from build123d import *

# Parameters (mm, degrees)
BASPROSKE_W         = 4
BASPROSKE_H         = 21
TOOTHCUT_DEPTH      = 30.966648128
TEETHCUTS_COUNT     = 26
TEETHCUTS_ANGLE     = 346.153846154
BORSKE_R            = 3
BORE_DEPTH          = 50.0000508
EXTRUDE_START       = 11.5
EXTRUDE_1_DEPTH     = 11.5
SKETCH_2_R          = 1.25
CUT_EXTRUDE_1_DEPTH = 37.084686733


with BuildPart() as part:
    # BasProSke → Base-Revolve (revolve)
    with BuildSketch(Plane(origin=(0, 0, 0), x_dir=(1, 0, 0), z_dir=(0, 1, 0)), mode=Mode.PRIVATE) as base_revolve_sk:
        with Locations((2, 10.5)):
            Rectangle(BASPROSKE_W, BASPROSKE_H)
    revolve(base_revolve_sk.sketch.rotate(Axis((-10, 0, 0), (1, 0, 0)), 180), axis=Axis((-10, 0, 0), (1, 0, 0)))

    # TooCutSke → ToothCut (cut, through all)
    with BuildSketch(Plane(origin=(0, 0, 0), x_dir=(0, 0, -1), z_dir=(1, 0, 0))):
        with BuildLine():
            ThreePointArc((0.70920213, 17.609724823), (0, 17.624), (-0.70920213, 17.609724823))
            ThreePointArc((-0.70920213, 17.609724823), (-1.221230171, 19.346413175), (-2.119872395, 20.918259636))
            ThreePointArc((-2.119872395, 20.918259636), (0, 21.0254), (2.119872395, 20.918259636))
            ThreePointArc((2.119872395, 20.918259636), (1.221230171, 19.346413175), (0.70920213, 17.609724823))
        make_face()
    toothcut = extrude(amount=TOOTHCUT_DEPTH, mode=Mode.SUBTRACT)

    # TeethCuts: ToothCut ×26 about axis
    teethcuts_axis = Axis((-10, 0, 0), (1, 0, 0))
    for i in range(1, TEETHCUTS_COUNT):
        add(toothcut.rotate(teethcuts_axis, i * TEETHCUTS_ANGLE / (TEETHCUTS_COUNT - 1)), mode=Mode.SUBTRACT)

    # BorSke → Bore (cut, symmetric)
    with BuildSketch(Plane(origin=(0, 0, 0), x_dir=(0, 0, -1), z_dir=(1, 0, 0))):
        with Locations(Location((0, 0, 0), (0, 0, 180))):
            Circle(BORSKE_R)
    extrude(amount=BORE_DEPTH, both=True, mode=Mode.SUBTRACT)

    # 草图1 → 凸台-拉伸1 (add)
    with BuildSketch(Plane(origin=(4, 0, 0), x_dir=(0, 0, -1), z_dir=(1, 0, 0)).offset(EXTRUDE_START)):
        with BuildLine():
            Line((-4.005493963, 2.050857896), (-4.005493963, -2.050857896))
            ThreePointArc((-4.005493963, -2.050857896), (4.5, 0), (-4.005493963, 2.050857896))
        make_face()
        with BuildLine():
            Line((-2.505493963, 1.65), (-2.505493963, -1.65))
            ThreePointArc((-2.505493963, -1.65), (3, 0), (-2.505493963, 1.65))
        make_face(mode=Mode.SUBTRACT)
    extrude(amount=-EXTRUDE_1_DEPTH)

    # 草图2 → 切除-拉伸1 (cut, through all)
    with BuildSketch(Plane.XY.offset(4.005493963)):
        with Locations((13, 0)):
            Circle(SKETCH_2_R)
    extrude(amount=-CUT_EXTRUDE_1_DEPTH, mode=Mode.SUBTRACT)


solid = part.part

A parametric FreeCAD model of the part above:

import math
import FreeCAD as App
import Part
import Sketcher
from FreeCAD import Vector

doc = App.newDocument("Part")
params = doc.addObject("Spreadsheet::Sheet", "Params")
for row, (alias, value) in enumerate([
    ("sketch1_width", "4 mm"),
    ("sketch1_height", "21 mm"),
    ("revolution_angle", "360 deg"),
    ("sketch2_radius", "7.8 mm"),
    ("sketch3_diameter", "6 mm"),
    ("pocket2_length", "100.000102 mm"),
    ("sketch4_radius", "3 mm"),
    ("sketch4_radius2", "4.5 mm"),
    ("sketch4_width", "3.3 mm"),
    ("pad1_length", "11.5 mm"),
    ("sketch5_diameter", "2.5 mm"),
], start=1):
    params.set(f"A{row}", alias)
    params.set(f"B{row}", "=" + value)
    params.setAlias(f"B{row}", alias)

body = doc.addObject("PartDesign::Body", "Body")

sketch1 = doc.addObject("Sketcher::SketchObject", "Sketch")
body.addObject(sketch1)
sketch1.AttachmentSupport = (doc.XZ_Plane, [""])
sketch1.MapMode = "FlatFace"
sketch1.addGeometry([
    Part.LineSegment(Vector(0, -21, 0), Vector(0, 0, 0)),
    Part.LineSegment(Vector(0, 0, 0), Vector(4, 0, 0)),
    Part.LineSegment(Vector(4, 0, 0), Vector(4, -21, 0)),
    Part.LineSegment(Vector(4, -21, 0), Vector(0, -21, 0)),
], False)
sketch1.addConstraint([
    Sketcher.Constraint("Coincident", 0, 2, 1, 1),
    Sketcher.Constraint("Coincident", 1, 2, 2, 1),
    Sketcher.Constraint("Coincident", 2, 2, 3, 1),
    Sketcher.Constraint("Coincident", 3, 2, 0, 1),
    Sketcher.Constraint("Vertical", 0),
    Sketcher.Constraint("Horizontal", 1),
    Sketcher.Constraint("Vertical", 2),
    Sketcher.Constraint("Horizontal", 3),
    Sketcher.Constraint("Coincident", 0, 2, -1, 1),
    Sketcher.Constraint("DistanceX", 1, 1, 1, 2, 4.0),
    Sketcher.Constraint("DistanceY", 0, 1, 0, 2, 21.0),
])
sketch1.setExpression("Constraints[9]", "Params.sketch1_width")
sketch1.setExpression("Constraints[10]", "Params.sketch1_height")
revolution = doc.addObject("PartDesign::Revolution", "Revolution")
body.addObject(revolution)
revolution.Profile = sketch1
revolution.ReferenceAxis = (sketch1, ["H_Axis"])
revolution.setExpression("Angle", "Params.revolution_angle")

sketch2 = doc.addObject("Sketcher::SketchObject", "Sketch001")
body.addObject(sketch2)
sketch2.AttachmentSupport = (doc.YZ_Plane, [""])
sketch2.MapMode = "FlatFace"
sketch2.addGeometry([
    Part.ArcOfCircle(Part.Circle(Vector(0, 0, 0), Vector(0, 0, 1), 17.6), math.radians(-2.31), math.radians(2.31)),
    Part.ArcOfCircle(Part.Circle(Vector(16.3, -8.4, 0), Vector(0, 0, 1), 7.8), math.radians(54), math.radians(80)),
    Part.ArcOfCircle(Part.Circle(Vector(0, 0, 0), Vector(0, 0, 1), 21), math.radians(-5.79), math.radians(5.79)),
    Part.ArcOfCircle(Part.Circle(Vector(16.3, 8.4, 0), Vector(0, 0, 1), 7.8), math.radians(-80), math.radians(-54)),
], False)
sketch2.addConstraint([
    Sketcher.Constraint("Coincident", 0, 1, 1, 2),
    Sketcher.Constraint("Coincident", 1, 1, 2, 1),
    Sketcher.Constraint("Coincident", 2, 2, 3, 2),
    Sketcher.Constraint("Coincident", 3, 1, 0, 2),
    Sketcher.Constraint("Coincident", 0, 3, -1, 1),
    Sketcher.Constraint("Coincident", 2, 3, -1, 1),
    Sketcher.Constraint("Equal", 1, 3),
    Sketcher.Constraint("Symmetric", 1, 3, 3, 3, -1),
    Sketcher.Constraint("Radius", 1, 7.8),
    Sketcher.Constraint("Radius", 0, 17.624),
    Sketcher.Constraint("Radius", 2, 21.0254),
    Sketcher.Constraint("DistanceY", 1, 3, -1, 1, 8.39626),
    Sketcher.Constraint("DistanceX", -1, 1, 1, 1, 20.91826),
])
sketch2.setExpression("Constraints[8]", "Params.sketch2_radius")
pocket1 = doc.addObject("PartDesign::Pocket", "Pocket")
body.addObject(pocket1)
pocket1.Profile = sketch2
pocket1.Type = "ThroughAll"
pocket1.Reversed = True
doc.recompute()

polarpattern = doc.addObject("PartDesign::PolarPattern", "PolarPattern")
body.addObject(polarpattern)
polarpattern.Originals = [pocket1]
polarpattern.Axis = (doc.X_Axis, [""])
polarpattern.Angle = 360
polarpattern.Occurrences = 26
body.Tip = polarpattern

sketch3 = doc.addObject("Sketcher::SketchObject", "Sketch002")
body.addObject(sketch3)
sketch3.AttachmentSupport = (doc.YZ_Plane, [""])
sketch3.MapMode = "FlatFace"
sketch3.addGeometry(Part.Circle(Vector(0, 0, 0), Vector(0, 0, 1), 3), False)
sketch3.addConstraint([
    Sketcher.Constraint("Coincident", 0, 3, -1, 1),
    Sketcher.Constraint("Diameter", 0, 6.0),
])
sketch3.setExpression("Constraints[1]", "Params.sketch3_diameter")
pocket2 = doc.addObject("PartDesign::Pocket", "Pocket001")
body.addObject(pocket2)
pocket2.Profile = sketch3
pocket2.setExpression("Length", "Params.pocket2_length")
pocket2.Midplane = True

sketch4 = doc.addObject("Sketcher::SketchObject", "Sketch003")
body.addObject(sketch4)
sketch4.AttachmentSupport = (doc.YZ_Plane, [""])
sketch4.MapMode = "FlatFace"
sketch4.AttachmentOffset = App.Placement(Vector(0, 0, 15.5), App.Rotation())
sketch4.addGeometry([
    Part.LineSegment(Vector(2.1, 4, 0), Vector(-2.1, 4, 0)),
    Part.ArcOfCircle(Part.Circle(Vector(0, 0, 0), Vector(0, 0, 1), 4.5), math.radians(117), math.radians(423)),
    Part.LineSegment(Vector(-1.6, 2.5, 0), Vector(1.6, 2.5, 0)),
    Part.ArcOfCircle(Part.Circle(Vector(0, 0, 0), Vector(0, 0, 1), 3), math.radians(123), math.radians(417)),
], False)
sketch4.addConstraint([
    Sketcher.Constraint("Coincident", 0, 1, 1, 2),
    Sketcher.Constraint("Coincident", 1, 1, 0, 2),
    Sketcher.Constraint("Coincident", 2, 1, 3, 1),
    Sketcher.Constraint("Coincident", 3, 2, 2, 2),
    Sketcher.Constraint("Horizontal", 0),
    Sketcher.Constraint("Horizontal", 2),
    Sketcher.Constraint("Coincident", 1, 3, -1, 1),
    Sketcher.Constraint("Coincident", 3, 3, -1, 1),
    Sketcher.Constraint("Radius", 3, 3.0),
    Sketcher.Constraint("Radius", 1, 4.5),
    Sketcher.Constraint("DistanceX", 2, 1, 2, 2, 3.3),
    Sketcher.Constraint("DistanceY", 2, 1, 1, 1, 1.5),
])
sketch4.setExpression("Constraints[8]", "Params.sketch4_radius")
sketch4.setExpression("Constraints[9]", "Params.sketch4_radius2")
sketch4.setExpression("Constraints[10]", "Params.sketch4_width")
pad1 = doc.addObject("PartDesign::Pad", "Pad")
body.addObject(pad1)
pad1.Profile = sketch4
pad1.setExpression("Length", "Params.pad1_length")
pad1.Reversed = True

sketch5 = doc.addObject("Sketcher::SketchObject", "Sketch004")
body.addObject(sketch5)
sketch5.AttachmentSupport = (doc.XY_Plane, [""])
sketch5.MapMode = "FlatFace"
sketch5.AttachmentOffset = App.Placement(Vector(0, 0, 4.005494), App.Rotation())
sketch5.addGeometry(Part.Circle(Vector(13, 0, 0), Vector(0, 0, 1), 1.2), False)
sketch5.addConstraint([
    Sketcher.Constraint("PointOnObject", 0, 3, -1),
    Sketcher.Constraint("Diameter", 0, 2.5),
    Sketcher.Constraint("DistanceX", -1, 1, 0, 3, 13.0),
])
sketch5.setExpression("Constraints[1]", "Params.sketch5_diameter")
pocket3 = doc.addObject("PartDesign::Pocket", "Pocket002")
body.addObject(pocket3)
pocket3.Profile = sketch5
pocket3.Type = "ThroughAll"

doc.recompute()
